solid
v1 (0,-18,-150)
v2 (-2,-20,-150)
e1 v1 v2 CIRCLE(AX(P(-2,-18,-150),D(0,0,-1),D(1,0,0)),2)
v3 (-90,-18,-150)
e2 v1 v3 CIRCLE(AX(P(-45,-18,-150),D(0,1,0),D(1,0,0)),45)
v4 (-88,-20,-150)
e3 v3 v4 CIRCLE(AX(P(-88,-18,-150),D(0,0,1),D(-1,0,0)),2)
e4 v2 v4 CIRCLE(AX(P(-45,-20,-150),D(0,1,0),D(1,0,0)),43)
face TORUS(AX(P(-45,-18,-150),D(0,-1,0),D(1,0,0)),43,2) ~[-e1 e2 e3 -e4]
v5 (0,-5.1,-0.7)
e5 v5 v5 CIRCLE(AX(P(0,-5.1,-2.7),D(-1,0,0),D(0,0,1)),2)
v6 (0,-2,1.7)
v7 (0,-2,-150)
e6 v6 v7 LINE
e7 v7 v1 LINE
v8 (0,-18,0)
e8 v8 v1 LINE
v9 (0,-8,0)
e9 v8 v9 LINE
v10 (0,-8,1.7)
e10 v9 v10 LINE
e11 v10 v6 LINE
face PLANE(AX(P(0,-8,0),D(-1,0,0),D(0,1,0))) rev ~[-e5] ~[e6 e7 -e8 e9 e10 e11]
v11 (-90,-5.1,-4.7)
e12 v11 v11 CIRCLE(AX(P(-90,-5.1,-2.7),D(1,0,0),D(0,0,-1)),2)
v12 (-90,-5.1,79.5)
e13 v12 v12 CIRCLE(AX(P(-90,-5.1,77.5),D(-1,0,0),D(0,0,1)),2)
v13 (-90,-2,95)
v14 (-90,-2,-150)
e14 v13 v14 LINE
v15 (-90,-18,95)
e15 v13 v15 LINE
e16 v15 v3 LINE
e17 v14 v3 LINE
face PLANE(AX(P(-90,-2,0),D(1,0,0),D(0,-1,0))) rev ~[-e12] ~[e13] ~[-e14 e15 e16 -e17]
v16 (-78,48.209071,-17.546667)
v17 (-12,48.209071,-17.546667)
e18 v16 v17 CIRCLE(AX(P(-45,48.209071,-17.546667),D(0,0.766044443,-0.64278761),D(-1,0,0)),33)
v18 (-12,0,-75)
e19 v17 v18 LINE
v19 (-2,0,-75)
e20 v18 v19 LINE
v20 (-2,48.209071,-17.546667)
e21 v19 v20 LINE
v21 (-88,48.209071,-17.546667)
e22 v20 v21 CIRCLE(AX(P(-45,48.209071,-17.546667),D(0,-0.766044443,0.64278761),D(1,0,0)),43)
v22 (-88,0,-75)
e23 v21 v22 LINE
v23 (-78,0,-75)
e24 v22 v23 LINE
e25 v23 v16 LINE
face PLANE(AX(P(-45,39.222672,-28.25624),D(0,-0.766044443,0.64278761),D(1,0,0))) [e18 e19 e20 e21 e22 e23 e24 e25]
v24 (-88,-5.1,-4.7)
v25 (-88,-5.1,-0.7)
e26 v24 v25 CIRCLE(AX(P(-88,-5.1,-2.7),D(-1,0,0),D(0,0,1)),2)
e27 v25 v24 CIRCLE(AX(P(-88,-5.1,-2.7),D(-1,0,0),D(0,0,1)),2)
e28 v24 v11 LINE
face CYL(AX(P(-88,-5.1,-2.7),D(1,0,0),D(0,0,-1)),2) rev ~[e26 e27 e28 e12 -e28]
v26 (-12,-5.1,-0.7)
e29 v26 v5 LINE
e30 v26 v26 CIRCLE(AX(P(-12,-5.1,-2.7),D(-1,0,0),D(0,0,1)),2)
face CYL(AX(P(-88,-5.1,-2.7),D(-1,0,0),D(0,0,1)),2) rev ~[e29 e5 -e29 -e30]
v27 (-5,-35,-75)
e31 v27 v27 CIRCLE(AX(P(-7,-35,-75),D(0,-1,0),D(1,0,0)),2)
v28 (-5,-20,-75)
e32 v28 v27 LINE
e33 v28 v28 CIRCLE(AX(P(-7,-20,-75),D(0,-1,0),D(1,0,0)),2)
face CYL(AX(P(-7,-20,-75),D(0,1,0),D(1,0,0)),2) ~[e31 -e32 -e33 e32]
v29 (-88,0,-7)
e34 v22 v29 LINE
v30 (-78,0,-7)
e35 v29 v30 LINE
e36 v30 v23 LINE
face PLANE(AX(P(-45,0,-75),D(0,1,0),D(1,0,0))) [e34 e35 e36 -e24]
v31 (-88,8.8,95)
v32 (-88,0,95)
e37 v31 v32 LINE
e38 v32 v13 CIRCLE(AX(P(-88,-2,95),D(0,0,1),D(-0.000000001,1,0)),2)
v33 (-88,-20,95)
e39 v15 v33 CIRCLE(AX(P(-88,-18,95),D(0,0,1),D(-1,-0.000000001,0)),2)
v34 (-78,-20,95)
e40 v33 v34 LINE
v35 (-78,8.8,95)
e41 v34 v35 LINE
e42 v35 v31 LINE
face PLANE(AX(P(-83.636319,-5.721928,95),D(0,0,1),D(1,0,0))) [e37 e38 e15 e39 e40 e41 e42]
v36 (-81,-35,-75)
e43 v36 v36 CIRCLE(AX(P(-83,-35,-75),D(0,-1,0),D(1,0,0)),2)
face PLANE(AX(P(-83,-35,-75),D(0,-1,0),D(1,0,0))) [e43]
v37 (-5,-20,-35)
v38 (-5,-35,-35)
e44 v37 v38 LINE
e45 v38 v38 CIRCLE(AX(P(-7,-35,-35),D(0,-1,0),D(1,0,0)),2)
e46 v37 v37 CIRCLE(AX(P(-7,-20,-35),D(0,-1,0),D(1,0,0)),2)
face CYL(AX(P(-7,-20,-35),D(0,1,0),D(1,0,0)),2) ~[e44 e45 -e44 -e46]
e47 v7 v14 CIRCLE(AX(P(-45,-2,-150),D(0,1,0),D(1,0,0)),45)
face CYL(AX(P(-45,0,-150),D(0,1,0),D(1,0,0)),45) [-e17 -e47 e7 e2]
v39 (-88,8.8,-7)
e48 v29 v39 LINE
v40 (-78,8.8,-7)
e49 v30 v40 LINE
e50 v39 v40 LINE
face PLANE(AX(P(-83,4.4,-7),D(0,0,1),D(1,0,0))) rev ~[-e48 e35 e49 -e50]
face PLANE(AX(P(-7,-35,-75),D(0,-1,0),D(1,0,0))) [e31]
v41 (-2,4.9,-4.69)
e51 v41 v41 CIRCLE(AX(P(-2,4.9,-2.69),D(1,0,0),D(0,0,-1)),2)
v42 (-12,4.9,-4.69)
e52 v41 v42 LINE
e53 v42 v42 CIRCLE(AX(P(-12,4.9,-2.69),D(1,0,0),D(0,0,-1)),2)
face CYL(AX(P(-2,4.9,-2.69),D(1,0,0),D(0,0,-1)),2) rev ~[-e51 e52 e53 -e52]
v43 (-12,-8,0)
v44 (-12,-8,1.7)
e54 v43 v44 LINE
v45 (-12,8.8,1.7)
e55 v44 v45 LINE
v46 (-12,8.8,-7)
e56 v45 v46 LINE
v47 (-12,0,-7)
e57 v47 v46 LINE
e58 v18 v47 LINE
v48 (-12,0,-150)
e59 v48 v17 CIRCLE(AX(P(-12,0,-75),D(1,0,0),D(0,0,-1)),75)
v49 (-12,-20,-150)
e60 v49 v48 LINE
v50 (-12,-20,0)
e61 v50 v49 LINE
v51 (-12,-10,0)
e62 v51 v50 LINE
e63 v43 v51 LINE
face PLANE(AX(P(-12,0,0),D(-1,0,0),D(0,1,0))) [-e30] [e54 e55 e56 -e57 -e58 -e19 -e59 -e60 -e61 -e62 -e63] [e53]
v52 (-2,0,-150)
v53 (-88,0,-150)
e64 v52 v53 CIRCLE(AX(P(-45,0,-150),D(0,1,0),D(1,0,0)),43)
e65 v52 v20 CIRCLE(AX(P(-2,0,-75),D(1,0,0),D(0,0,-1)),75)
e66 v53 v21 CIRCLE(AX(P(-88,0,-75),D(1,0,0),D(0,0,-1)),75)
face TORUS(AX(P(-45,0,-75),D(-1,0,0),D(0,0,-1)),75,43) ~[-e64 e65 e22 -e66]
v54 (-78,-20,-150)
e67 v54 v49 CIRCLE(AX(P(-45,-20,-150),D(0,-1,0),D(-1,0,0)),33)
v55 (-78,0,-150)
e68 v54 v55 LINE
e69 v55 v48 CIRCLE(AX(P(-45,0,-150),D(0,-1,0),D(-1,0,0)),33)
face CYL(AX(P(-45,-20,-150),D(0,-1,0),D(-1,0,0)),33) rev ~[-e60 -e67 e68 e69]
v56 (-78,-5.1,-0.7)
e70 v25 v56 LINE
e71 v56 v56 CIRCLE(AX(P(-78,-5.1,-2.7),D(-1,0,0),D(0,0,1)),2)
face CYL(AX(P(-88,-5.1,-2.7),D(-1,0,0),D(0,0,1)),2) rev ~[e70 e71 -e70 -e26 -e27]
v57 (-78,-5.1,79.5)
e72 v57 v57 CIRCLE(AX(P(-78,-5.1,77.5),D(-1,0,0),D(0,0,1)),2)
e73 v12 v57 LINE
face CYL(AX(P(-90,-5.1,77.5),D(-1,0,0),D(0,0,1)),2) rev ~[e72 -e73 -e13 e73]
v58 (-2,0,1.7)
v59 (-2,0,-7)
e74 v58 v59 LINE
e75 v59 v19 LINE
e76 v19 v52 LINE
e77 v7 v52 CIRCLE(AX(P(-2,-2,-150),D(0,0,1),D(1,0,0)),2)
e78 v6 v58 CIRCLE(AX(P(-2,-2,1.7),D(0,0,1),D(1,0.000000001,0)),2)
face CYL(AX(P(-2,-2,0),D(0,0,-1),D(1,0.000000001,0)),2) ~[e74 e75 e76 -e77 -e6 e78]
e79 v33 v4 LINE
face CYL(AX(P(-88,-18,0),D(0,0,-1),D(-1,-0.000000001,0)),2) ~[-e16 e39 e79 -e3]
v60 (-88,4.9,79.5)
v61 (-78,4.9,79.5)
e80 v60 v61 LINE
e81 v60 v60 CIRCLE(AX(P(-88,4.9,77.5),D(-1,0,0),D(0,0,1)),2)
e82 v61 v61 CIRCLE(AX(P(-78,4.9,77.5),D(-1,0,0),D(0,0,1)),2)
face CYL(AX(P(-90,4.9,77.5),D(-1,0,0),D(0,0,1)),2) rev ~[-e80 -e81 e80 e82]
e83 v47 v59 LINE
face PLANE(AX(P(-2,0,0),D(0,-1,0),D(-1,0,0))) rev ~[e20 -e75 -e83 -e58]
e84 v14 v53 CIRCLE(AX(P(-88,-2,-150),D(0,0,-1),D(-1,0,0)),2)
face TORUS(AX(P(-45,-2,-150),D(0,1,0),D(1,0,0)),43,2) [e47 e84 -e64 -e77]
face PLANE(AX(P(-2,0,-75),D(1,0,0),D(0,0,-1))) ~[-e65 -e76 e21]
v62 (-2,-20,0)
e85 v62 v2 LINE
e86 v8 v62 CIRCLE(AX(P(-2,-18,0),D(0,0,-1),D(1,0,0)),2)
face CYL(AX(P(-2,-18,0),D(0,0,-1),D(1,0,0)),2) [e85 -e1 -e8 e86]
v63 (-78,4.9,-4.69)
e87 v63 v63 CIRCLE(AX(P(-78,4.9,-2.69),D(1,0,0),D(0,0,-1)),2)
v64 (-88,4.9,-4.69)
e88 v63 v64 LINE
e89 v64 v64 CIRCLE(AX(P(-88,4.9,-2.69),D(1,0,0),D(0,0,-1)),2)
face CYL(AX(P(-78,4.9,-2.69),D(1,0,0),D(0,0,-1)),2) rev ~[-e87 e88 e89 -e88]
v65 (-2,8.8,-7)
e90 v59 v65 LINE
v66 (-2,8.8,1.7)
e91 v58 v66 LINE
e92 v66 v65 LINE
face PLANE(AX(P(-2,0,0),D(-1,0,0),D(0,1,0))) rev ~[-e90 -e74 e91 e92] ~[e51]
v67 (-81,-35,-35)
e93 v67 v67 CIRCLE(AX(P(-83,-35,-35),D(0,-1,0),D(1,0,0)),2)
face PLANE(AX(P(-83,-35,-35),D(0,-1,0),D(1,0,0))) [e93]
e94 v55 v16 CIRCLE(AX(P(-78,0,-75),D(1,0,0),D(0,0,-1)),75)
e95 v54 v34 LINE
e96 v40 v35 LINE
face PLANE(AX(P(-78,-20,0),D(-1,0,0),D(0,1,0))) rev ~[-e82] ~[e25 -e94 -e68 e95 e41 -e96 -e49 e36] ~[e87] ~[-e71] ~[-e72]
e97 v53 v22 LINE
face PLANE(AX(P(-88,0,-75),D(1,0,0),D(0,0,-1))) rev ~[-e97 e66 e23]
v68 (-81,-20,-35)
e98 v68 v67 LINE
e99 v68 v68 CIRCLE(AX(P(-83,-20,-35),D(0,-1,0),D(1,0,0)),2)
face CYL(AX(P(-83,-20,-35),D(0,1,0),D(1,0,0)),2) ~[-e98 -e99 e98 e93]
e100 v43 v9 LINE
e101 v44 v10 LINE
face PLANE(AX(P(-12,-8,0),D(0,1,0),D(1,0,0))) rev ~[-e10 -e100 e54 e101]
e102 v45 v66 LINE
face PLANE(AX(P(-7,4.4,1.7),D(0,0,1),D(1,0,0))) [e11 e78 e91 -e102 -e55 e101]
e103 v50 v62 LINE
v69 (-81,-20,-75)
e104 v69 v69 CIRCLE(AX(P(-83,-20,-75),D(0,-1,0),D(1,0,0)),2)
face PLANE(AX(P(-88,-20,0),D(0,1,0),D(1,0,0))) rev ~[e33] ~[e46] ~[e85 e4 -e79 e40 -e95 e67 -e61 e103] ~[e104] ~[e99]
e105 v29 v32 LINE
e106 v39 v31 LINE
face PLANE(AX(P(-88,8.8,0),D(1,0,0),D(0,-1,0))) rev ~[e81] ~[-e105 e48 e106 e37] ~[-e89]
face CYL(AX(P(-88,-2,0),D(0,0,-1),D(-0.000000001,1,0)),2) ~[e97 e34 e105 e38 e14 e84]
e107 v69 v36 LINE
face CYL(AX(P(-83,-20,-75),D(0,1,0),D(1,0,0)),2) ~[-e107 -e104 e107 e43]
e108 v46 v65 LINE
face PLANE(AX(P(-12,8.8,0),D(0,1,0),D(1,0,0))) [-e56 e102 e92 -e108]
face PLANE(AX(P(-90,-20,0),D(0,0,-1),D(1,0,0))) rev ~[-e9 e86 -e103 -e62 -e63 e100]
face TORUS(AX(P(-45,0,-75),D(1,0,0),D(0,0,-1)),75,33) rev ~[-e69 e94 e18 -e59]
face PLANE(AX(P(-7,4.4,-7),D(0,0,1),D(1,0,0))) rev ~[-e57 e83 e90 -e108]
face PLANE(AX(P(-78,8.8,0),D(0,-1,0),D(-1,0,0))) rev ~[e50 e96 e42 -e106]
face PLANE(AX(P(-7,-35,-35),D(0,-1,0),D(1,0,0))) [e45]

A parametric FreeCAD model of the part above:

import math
import FreeCAD as App
import Part
import Sketcher
Q = App.Units.Quantity


def edges_at(feature, points):
    """Names of the edges that pass closest to the given points."""
    edges = feature.Shape.Edges
    near = lambda p: min(range(len(edges)), key=lambda i: edges[i].distToShape(Part.Vertex(*p))[0])
    return sorted({f"Edge{near(p) + 1}" for p in points})

doc = App.newDocument("Part")
body = doc.addObject("PartDesign::Body", "Body")
body.AllowCompound = True

sketch1 = doc.addObject("Sketcher::SketchObject", "Sketch")
body.addObject(sketch1)
sketch1.AttachmentSupport = (doc.XZ_Plane, [""])
sketch1.MapMode = "FlatFace"
sketch1.addGeometry([
    Part.LineSegment(App.Vector(0, 0, 0), App.Vector(0, -150, 0)),
    Part.ArcOfCircle(Part.Circle(App.Vector(-45, -150, 0), App.Vector(0, 0, 1), 45), math.radians(180), math.radians(360)),
    Part.LineSegment(App.Vector(-90, -150, 0), App.Vector(-90, 0, 0)),
    Part.ArcOfCircle(Part.Circle(App.Vector(-45, 0, 0), App.Vector(0, 0, 1), 45), math.radians(0), math.radians(180)),
], False)
sketch1.addConstraint([
    Sketcher.Constraint("Tangent", 0, 2, 1, 2),
    Sketcher.Constraint("Tangent", 1, 1, 2, 1),
    Sketcher.Constraint("Tangent", 2, 2, 3, 2),
    Sketcher.Constraint("Tangent", 3, 1, 0, 1),
    Sketcher.Constraint("Vertical", 0),
    Sketcher.Constraint("Vertical", 2),
    Sketcher.Constraint("Coincident", 3, 1, -1, 1),
    Sketcher.Constraint("Radius", 1, Q("45 mm")),
    Sketcher.Constraint("DistanceY", 0, 2, 0, 1, Q("150 mm")),
])
pad1 = doc.addObject("PartDesign::Pad", "Pad")
body.addObject(pad1)
pad1.Profile = sketch1
pad1.Length = 20
doc.recompute()

fillet = doc.addObject("PartDesign::Fillet", "Fillet")
body.addObject(fillet)
fillet.Base = (pad1, edges_at(pad1, [
    (-45, -20, -195),
    (-90, -20, -75),
    (-45, -20, 45),
    (-90, 0, -75),
    (-45, 0, -195),
    (0, 0, -75),
    (-45, 0, 45),
    (0, -20, -75),
]))
fillet.Radius = 2

sketch2 = doc.addObject("Sketcher::SketchObject", "Sketch001")
body.addObject(sketch2)
sketch2.AttachmentSupport = (doc.XZ_Plane, [""])
sketch2.MapMode = "FlatFace"
sketch2.addGeometry([
    Part.LineSegment(App.Vector(-78, -150, 0), App.Vector(-78, 0, 0)),
    Part.ArcOfCircle(Part.Circle(App.Vector(-45, 0, 0), App.Vector(0, 0, 1), 33), math.radians(0), math.radians(180)),
    Part.LineSegment(App.Vector(-12, 0, 0), App.Vector(-12, -150, 0)),
    Part.ArcOfCircle(Part.Circle(App.Vector(-45, -150, 0), App.Vector(0, 0, 1), 33), math.radians(180), math.radians(360)),
], False)
sketch2.addConstraint([
    Sketcher.Constraint("Tangent", 0, 2, 1, 2),
    Sketcher.Constraint("Tangent", 1, 1, 2, 1),
    Sketcher.Constraint("Tangent", 2, 2, 3, 2),
    Sketcher.Constraint("Tangent", 3, 1, 0, 1),
    Sketcher.Constraint("Vertical", 0),
    Sketcher.Constraint("Vertical", 2),
    Sketcher.Constraint("PointOnObject", 1, 3, -1),
    Sketcher.Constraint("Radius", 1, Q("33 mm")),
    Sketcher.Constraint("DistanceY", 0, 1, 0, 2, Q("150 mm")),
    Sketcher.Constraint("DistanceX", 1, 3, -1, 1, Q("45 mm")),
])
pocket1 = doc.addObject("PartDesign::Pocket", "Pocket")
body.addObject(pocket1)
pocket1.Profile = sketch2
pocket1.Length = 15
pocket1.Reversed = True

sketch3 = doc.addObject("Sketcher::SketchObject", "Sketch002")
body.addObject(sketch3)
sketch3.AttachmentSupport = (doc.XZ_Plane, [""])
sketch3.MapMode = "FlatFace"
sketch3.addGeometry([
    Part.LineSegment(App.Vector(-2, -75, 0), App.Vector(-2, -150, 0)),
    Part.ArcOfCircle(Part.Circle(App.Vector(-45, -150, 0), App.Vector(0, 0, 1), 43), math.radians(180), math.radians(360)),
    Part.LineSegment(App.Vector(-88, -150, 0), App.Vector(-88, -75, 0)),
    Part.LineSegment(App.Vector(-88, -75, 0), App.Vector(-78, -75, 0)),
    Part.LineSegment(App.Vector(-78, -75, 0), App.Vector(-78, -150, 0)),
    Part.ArcOfCircle(Part.Circle(App.Vector(-45, -150, 0), App.Vector(0, 0, 1), 33), math.radians(180), math.radians(360)),
    Part.LineSegment(App.Vector(-12, -150, 0), App.Vector(-12, -75, 0)),
    Part.LineSegment(App.Vector(-12, -75, 0), App.Vector(-2, -75, 0)),
], False)
sketch3.addGeometry(Part.LineSegment(App.Vector(-88, -75, 0), App.Vector(-2, -75, 0)), True)
sketch3.addConstraint([
    Sketcher.Constraint("Tangent", 0, 2, 1, 2),
    Sketcher.Constraint("Tangent", 1, 1, 2, 1),
    Sketcher.Constraint("Coincident", 2, 2, 3, 1),
    Sketcher.Constraint("Coincident", 3, 2, 4, 1),
    Sketcher.Constraint("Tangent", 4, 2, 5, 1),
    Sketcher.Constraint("Tangent", 5, 2, 6, 1),
    Sketcher.Constraint("Coincident", 6, 2, 7, 1),
    Sketcher.Constraint("Coincident", 7, 2, 0, 1),
    Sketcher.Constraint("Vertical", 0),
    Sketcher.Constraint("Vertical", 2),
    Sketcher.Constraint("Horizontal", 3),
    Sketcher.Constraint("Vertical", 4),
    Sketcher.Constraint("Vertical", 6),
    Sketcher.Constraint("Horizontal", 7),
    Sketcher.Constraint("Horizontal", 8),
    Sketcher.Constraint("Coincident", 5, 3, 1, 3),
    Sketcher.Constraint("Coincident", 8, 1, 2, 2),
    Sketcher.Constraint("Coincident", 8, 2, 7, 2),
    Sketcher.Constraint("Radius", 1, Q("43 mm")),
    Sketcher.Constraint("Radius", 5, Q("33 mm")),
    Sketcher.Constraint("DistanceY", 0, 2, 0, 1, Q("75 mm")),
    Sketcher.Constraint("DistanceX", 1, 3, -1, 1, Q("45 mm")),
    Sketcher.Constraint("DistanceY", 1, 3, -1, 1, Q("150 mm")),
])
revolution = doc.addObject("PartDesign::Revolution", "Revolution")
body.addObject(revolution)
revolution.Profile = sketch3
revolution.ReferenceAxis = (sketch3, ["Axis0"])
revolution.Angle = 140

sketch4 = doc.addObject("Sketcher::SketchObject", "Sketch003")
body.addObject(sketch4)
sketch4.AttachmentSupport = (doc.XZ_Plane, [""])
sketch4.MapMode = "FlatFace"
sketch4.AttachmentOffset = App.Placement(App.Vector(0, 0, 20), App.Rotation())
sketch4.addGeometry([
    Part.LineSegment(App.Vector(-76, 0, 0), App.Vector(-76, -150, 0)),
    Part.ArcOfCircle(Part.Circle(App.Vector(-45, -150, 0), App.Vector(0, 0, 1), 31), math.radians(180), math.radians(360)),
    Part.LineSegment(App.Vector(-14, -150, 0), App.Vector(-14, 0, 0)),
    Part.ArcOfCircle(Part.Circle(App.Vector(-45, 0, 0), App.Vector(0, 0, 1), 31), math.radians(0), math.radians(180)),
], False)
sketch4.addConstraint([
    Sketcher.Constraint("Tangent", 0, 2, 1, 1),
    Sketcher.Constraint("Tangent", 1, 2, 2, 1),
    Sketcher.Constraint("Tangent", 2, 2, 3, 1),
    Sketcher.Constraint("Tangent", 3, 2, 0, 1),
    Sketcher.Constraint("Vertical", 0),
    Sketcher.Constraint("Vertical", 2),
    Sketcher.Constraint("PointOnObject", 3, 3, -1),
    Sketcher.Constraint("Radius", 1, Q("31 mm")),
    Sketcher.Constraint("DistanceY", 0, 2, 0, 1, Q("150 mm")),
    Sketcher.Constraint("DistanceX", 1, 3, -1, 1, Q("45 mm")),
])
pocket2 = doc.addObject("PartDesign::Pocket", "Pocket001")
body.addObject(pocket2)
pocket2.Profile = sketch4
pocket2.Length = 20

sketch5 = doc.addObject("Sketcher::SketchObject", "Sketch004")
body.addObject(sketch5)
sketch5.AttachmentSupport = (doc.XZ_Plane, [""])
sketch5.MapMode = "FlatFace"
sketch5.AttachmentOffset = App.Placement(App.Vector(0, 0, 20), App.Rotation())
sketch5.addGeometry([
    Part.Circle(App.Vector(-83, -75, 0), App.Vector(0, 0, 1), 2),
    Part.Circle(App.Vector(-83, -35, 0), App.Vector(0, 0, 1), 2),
    Part.Circle(App.Vector(-83, 5, 0), App.Vector(0, 0, 1), 2),
    Part.Circle(App.Vector(-7, 5, 0), App.Vector(0, 0, 1), 2),
    Part.Circle(App.Vector(-7, -35, 0), App.Vector(0, 0, 1), 2),
    Part.Circle(App.Vector(-7, -75, 0), App.Vector(0, 0, 1), 2),
], False)
sketch5.addConstraint([
    Sketcher.Constraint("Equal", 0, 1),
    Sketcher.Constraint("Equal", 1, 2),
    Sketcher.Constraint("Equal", 2, 3),
    Sketcher.Constraint("Equal", 3, 4),
    Sketcher.Constraint("Equal", 4, 5),
    Sketcher.Constraint("Horizontal", 2, 3, 3, 3),
    Sketcher.Constraint("Horizontal", 1, 3, 4, 3),
    Sketcher.Constraint("Horizontal", 0, 3, 5, 3),
    Sketcher.Constraint("Vertical", 0, 3, 1, 3),
    Sketcher.Constraint("Vertical", 1, 3, 2, 3),
    Sketcher.Constraint("Vertical", 3, 3, 4, 3),
    Sketcher.Constraint("Vertical", 4, 3, 5, 3),
    Sketcher.Constraint("Diameter", 0, Q("4 mm")),
    Sketcher.Constraint("DistanceX", 0, 3, -1, 1, Q("83 mm")),
    Sketcher.Constraint("DistanceY", 0, 3, -1, 1, Q("75 mm")),
    Sketcher.Constraint("DistanceY", 1, 3, -1, 1, Q("35 mm")),
    Sketcher.Constraint("DistanceY", -1, 1, 2, 3, Q("5 mm")),
    Sketcher.Constraint("DistanceX", 3, 3, -1, 1, Q("7 mm")),
])
pad2 = doc.addObject("PartDesign::Pad", "Pad001")
body.addObject(pad2)
pad2.Profile = sketch5
pad2.Length = 15

sketch6 = doc.addObject("Sketcher::SketchObject", "Sketch005")
body.addObject(sketch6)
sketch6.AttachmentSupport = (doc.XZ_Plane, [""])
sketch6.MapMode = "FlatFace"
sketch6.AttachmentOffset = App.Placement(App.Vector(0, 0, 20), App.Rotation())
sketch6.addGeometry([
    Part.LineSegment(App.Vector(-90, 51, 0), App.Vector(-90, 0, 0)),
    Part.LineSegment(App.Vector(-90, 0, 0), App.Vector(0, 0, 0)),
    Part.LineSegment(App.Vector(0, 0, 0), App.Vector(0, 51, 0)),
    Part.LineSegment(App.Vector(0, 51, 0), App.Vector(-90, 51, 0)),
], False)
sketch6.addConstraint([
    Sketcher.Constraint("Coincident", 0, 2, 1, 1),
    Sketcher.Constraint("Coincident", 1, 2, 2, 1),
    Sketcher.Constraint("Coincident", 2, 2, 3, 1),
    Sketcher.Constraint("Coincident", 3, 2, 0, 1),
    Sketcher.Constraint("Vertical", 0),
    Sketcher.Constraint("Horizontal", 1),
    Sketcher.Constraint("Vertical", 2),
    Sketcher.Constraint("Horizontal", 3),
    Sketcher.Constraint("Coincident", 1, 2, -1, 1),
    Sketcher.Constraint("DistanceX", 1, 1, 1, 2, Q("90 mm")),
    Sketcher.Constraint("DistanceY", 0, 2, 0, 1, Q("51.446943 mm")),
])
pocket3 = doc.addObject("PartDesign::Pocket", "Pocket002")
body.addObject(pocket3)
pocket3.Profile = sketch6
pocket3.Length = 10

sketch7 = doc.addObject("Sketcher::SketchObject", "Sketch006")
body.addObject(sketch7)
sketch7.AttachmentSupport = (doc.XZ_Plane, [""])
sketch7.MapMode = "FlatFace"
sketch7.AttachmentOffset = App.Placement(App.Vector(0, 0, 35), App.Rotation())
sketch7.addGeometry([
    Part.Circle(App.Vector(-7, 5, 0), App.Vector(0, 0, 1), 2),
    Part.Circle(App.Vector(-83, 5, 0), App.Vector(0, 0, 1), 2),
], False)
sketch7.addConstraint([
    Sketcher.Constraint("Equal", 0, 1),
    Sketcher.Constraint("Horizontal", 0, 3, 1, 3),
    Sketcher.Constraint("Diameter", 0, Q("4 mm")),
    Sketcher.Constraint("DistanceX", 0, 3, -1, 1, Q("7 mm")),
    Sketcher.Constraint("DistanceY", -1, 1, 0, 3, Q("5 mm")),
    Sketcher.Constraint("DistanceX", 1, 3, -1, 1, Q("83 mm")),
])
pad3 = doc.addObject("PartDesign::Pad", "Pad002")
body.addObject(pad3)
pad3.Profile = sketch7
pad3.Length = 25
pad3.Reversed = True

sketch8 = doc.addObject("Sketcher::SketchObject", "Sketch007")
body.addObject(sketch8)
sketch8.AttachmentSupport = (doc.XY_Plane, [""])
sketch8.MapMode = "FlatFace"
sketch8.addGeometry([
    Part.LineSegment(App.Vector(-14, -15, 0), App.Vector(-14, -20, 0)),
    Part.LineSegment(App.Vector(-14, -20, 0), App.Vector(-12, -20, 0)),
    Part.LineSegment(App.Vector(-12, -20, 0), App.Vector(-12, -15, 0)),
    Part.LineSegment(App.Vector(-12, -15, 0), App.Vector(-14, -15, 0)),
    Part.LineSegment(App.Vector(-78, -15, 0), App.Vector(-78, -20, 0)),
    Part.LineSegment(App.Vector(-78, -20, 0), App.Vector(-76, -20, 0)),
    Part.LineSegment(App.Vector(-76, -20, 0), App.Vector(-76, -15, 0)),
    Part.LineSegment(App.Vector(-76, -15, 0), App.Vector(-78, -15, 0)),
], False)
sketch8.addConstraint([
    Sketcher.Constraint("Coincident", 0, 2, 1, 1),
    Sketcher.Constraint("Coincident", 1, 2, 2, 1),
    Sketcher.Constraint("Coincident", 2, 2, 3, 1),
    Sketcher.Constraint("Coincident", 3, 2, 0, 1),
    Sketcher.Constraint("Coincident", 4, 2, 5, 1),
    Sketcher.Constraint("Coincident", 5, 2, 6, 1),
    Sketcher.Constraint("Coincident", 6, 2, 7, 1),
    Sketcher.Constraint("Coincident", 7, 2, 4, 1),
    Sketcher.Constraint("Vertical", 0),
    Sketcher.Constraint("Horizontal", 1),
    Sketcher.Constraint("Vertical", 2),
    Sketcher.Constraint("Horizontal", 3),
    Sketcher.Constraint("Vertical", 4),
    Sketcher.Constraint("Horizontal", 5),
    Sketcher.Constraint("Vertical", 6),
    Sketcher.Constraint("Horizontal", 7),
    Sketcher.Constraint("Horizontal", 1, 2, 4, 2),
    Sketcher.Constraint("Horizontal", 3, 2, 6, 2),
    Sketcher.Constraint("Equal", 3, 5),
    Sketcher.Constraint("DistanceX", 1, 1, 1, 2, Q("2 mm")),
    Sketcher.Constraint("DistanceY", 0, 2, 0, 1, Q("5 mm")),
    Sketcher.Constraint("DistanceX", 0, 2, -1, 1, Q("14 mm")),
    Sketcher.Constraint("DistanceY", 0, 2, -1, 1, Q("20 mm")),
    Sketcher.Constraint("DistanceX", 4, 2, -1, 1, Q("78 mm")),
])
pocket4 = doc.addObject("PartDesign::Pocket", "Pocket003")
body.addObject(pocket4)
pocket4.Profile = sketch8
pocket4.Length = 150

sketch9 = doc.addObject("Sketcher::SketchObject", "Sketch008")
body.addObject(sketch9)
sketch9.AttachmentSupport = (doc.XZ_Plane, [""])
sketch9.MapMode = "FlatFace"
sketch9.AttachmentOffset = App.Placement(App.Vector(0, 0, 35), App.Rotation())
sketch9.addGeometry([
    Part.LineSegment(App.Vector(0, 0, 0), App.Vector(0, 51, 0)),
    Part.LineSegment(App.Vector(0, 51, 0), App.Vector(-90, 51, 0)),
    Part.LineSegment(App.Vector(-90, 51, 0), App.Vector(-90, 0, 0)),
    Part.LineSegment(App.Vector(-90, 0, 0), App.Vector(0, 0, 0)),
], False)
sketch9.addConstraint([
    Sketcher.Constraint("Coincident", 0, 2, 1, 1),
    Sketcher.Constraint("Coincident", 1, 2, 2, 1),
    Sketcher.Constraint("Coincident", 2, 2, 3, 1),
    Sketcher.Constraint("Coincident", 3, 2, 0, 1),
    Sketcher.Constraint("Vertical", 0),
    Sketcher.Constraint("Horizontal", 1),
    Sketcher.Constraint("Vertical", 2),
    Sketcher.Constraint("Horizontal", 3),
    Sketcher.Constraint("Coincident", 3, 2, -1, 1),
    Sketcher.Constraint("DistanceX", 1, 2, 1, 1, Q("90 mm")),
    Sketcher.Constraint("DistanceY", 0, 1, 0, 2, Q("51.37467 mm")),
])
pocket5 = doc.addObject("PartDesign::Pocket", "Pocket004")
body.addObject(pocket5)
pocket5.Profile = sketch9
pocket5.Length = 40

sketch10 = doc.addObject("Sketcher::SketchObject", "Sketch009")
body.addObject(sketch10)
sketch10.AttachmentSupport = (doc.XZ_Plane, [""])
sketch10.MapMode = "FlatFace"
sketch10.AttachmentOffset = App.Placement(App.Vector(0, 0, 20), App.Rotation())
sketch10.addGeometry([
    Part.LineSegment(App.Vector(-12, -150, 0), App.Vector(-14, -150, 0)),
    Part.ArcOfCircle(Part.Circle(App.Vector(-45, -150, 0), App.Vector(0, 0, 1), 31), math.radians(180), math.radians(360)),
    Part.LineSegment(App.Vector(-76, -150, 0), App.Vector(-78, -150, 0)),
    Part.ArcOfCircle(Part.Circle(App.Vector(-45, -150, 0), App.Vector(0, 0, 1), 33), math.radians(180), math.radians(360)),
], False)
sketch10.addConstraint([
    Sketcher.Constraint("Coincident", 0, 2, 1, 2),
    Sketcher.Constraint("Coincident", 1, 1, 2, 1),
    Sketcher.Constraint("Coincident", 2, 2, 3, 1),
    Sketcher.Constraint("Coincident", 3, 2, 0, 1),
    Sketcher.Constraint("Horizontal", 0),
    Sketcher.Constraint("Horizontal", 2),
    Sketcher.Constraint("Coincident", 3, 3, 1, 3),
    Sketcher.Constraint("Horizontal", 3, 3, 0, 2),
    Sketcher.Constraint("Horizontal", 0, 2, 1, 1),
    Sketcher.Constraint("Radius", 1, Q("31 mm")),
    Sketcher.Constraint("Radius", 3, Q("33 mm")),
    Sketcher.Constraint("DistanceX", 1, 3, -1, 1, Q("45 mm")),
    Sketcher.Constraint("DistanceY", 1, 3, -1, 1, Q("150 mm")),
])
pocket6 = doc.addObject("PartDesign::Pocket", "Pocket005")
body.addObject(pocket6)
pocket6.Profile = sketch10
pocket6.Length = 20

sketch11 = doc.addObject("Sketcher::SketchObject", "Sketch010")
body.addObject(sketch11)
sketch11.AttachmentSupport = (doc.XY_Plane, [""])
sketch11.MapMode = "FlatFace"
sketch11.addGeometry([
    Part.LineSegment(App.Vector(-2, 0, 0), App.Vector(-12, 0, 0)),
    Part.LineSegment(App.Vector(-12, 0, 0), App.Vector(-12, -8, 0)),
    Part.LineSegment(App.Vector(-12, -8, 0), App.Vector(0, -8, 0)),
    Part.LineSegment(App.Vector(0, -8, 0), App.Vector(0, -2, 0)),
    Part.ArcOfCircle(Part.Circle(App.Vector(-2, -2, 0), App.Vector(0, 0, 1), 2), math.radians(0), math.radians(90)),
], False)
sketch11.addConstraint([
    Sketcher.Constraint("Coincident", 0, 2, 1, 1),
    Sketcher.Constraint("Coincident", 1, 2, 2, 1),
    Sketcher.Constraint("Coincident", 2, 2, 3, 1),
    Sketcher.Constraint("Tangent", 3, 2, 4, 1),
    Sketcher.Constraint("Tangent", 4, 2, 0, 1),
    Sketcher.Constraint("Horizontal", 0),
    Sketcher.Constraint("Vertical", 1),
    Sketcher.Constraint("Horizontal", 2),
    Sketcher.Constraint("Vertical", 3),
    Sketcher.Constraint("PointOnObject", 0, 2, -1),
    Sketcher.Constraint("PointOnObject", 2, 2, -2),
    Sketcher.Constraint("Radius", 4, Q("2 mm")),
    Sketcher.Constraint("DistanceX", 0, 2, 0, 1, Q("10 mm")),
    Sketcher.Constraint("DistanceY", 1, 2, 1, 1, Q("8 mm")),
])
pad4 = doc.addObject("PartDesign::Pad", "Pad003")
body.addObject(pad4)
pad4.Profile = sketch11
pad4.Length = 1.7

sketch12 = doc.addObject("Sketcher::SketchObject", "Sketch011")
body.addObject(sketch12)
sketch12.AttachmentSupport = (doc.XY_Plane, [""])
sketch12.MapMode = "FlatFace"
sketch12.addGeometry([
    Part.LineSegment(App.Vector(-12, 9, 0), App.Vector(-12, 0, 0)),
    Part.LineSegment(App.Vector(-12, 0, 0), App.Vector(-2, 0, 0)),
    Part.LineSegment(App.Vector(-2, 0, 0), App.Vector(-2, 9, 0)),
    Part.LineSegment(App.Vector(-2, 9, 0), App.Vector(-12, 9, 0)),
], False)
sketch12.addConstraint([
    Sketcher.Constraint("Coincident", 0, 2, 1, 1),
    Sketcher.Constraint("Coincident", 1, 2, 2, 1),
    Sketcher.Constraint("Coincident", 2, 2, 3, 1),
    Sketcher.Constraint("Coincident", 3, 2, 0, 1),
    Sketcher.Constraint("Vertical", 0),
    Sketcher.Constraint("Horizontal", 1),
    Sketcher.Constraint("Vertical", 2),
    Sketcher.Constraint("Horizontal", 3),
    Sketcher.Constraint("PointOnObject", 0, 2, -1),
    Sketcher.Constraint("DistanceX", 1, 1, 1, 2, Q("10 mm")),
    Sketcher.Constraint("DistanceY", 0, 2, 0, 1, Q("8.8 mm")),
    Sketcher.Constraint("DistanceX", 0, 2, -1, 1, Q("12 mm")),
])
pad5 = doc.addObject("PartDesign::Pad", "Pad004")
body.addObject(pad5)
pad5.Profile = sketch12
pad5.Length = 7
pad5.Reversed = True

sketch13 = doc.addObject("Sketcher::SketchObject", "Sketch012")
body.addObject(sketch13)
sketch13.AttachmentSupport = (doc.XY_Plane, [""])
sketch13.MapMode = "FlatFace"
sketch13.addGeometry([
    Part.LineSegment(App.Vector(-12, 9, 0), App.Vector(-12, 0, 0)),
    Part.LineSegment(App.Vector(-12, 0, 0), App.Vector(-2, 0, 0)),
    Part.LineSegment(App.Vector(-2, 0, 0), App.Vector(-2, 9, 0)),
    Part.LineSegment(App.Vector(-2, 9, 0), App.Vector(-12, 9, 0)),
], False)
sketch13.addConstraint([
    Sketcher.Constraint("Coincident", 0, 2, 1, 1),
    Sketcher.Constraint("Coincident", 1, 2, 2, 1),
    Sketcher.Constraint("Coincident", 2, 2, 3, 1),
    Sketcher.Constraint("Coincident", 3, 2, 0, 1),
    Sketcher.Constraint("Vertical", 0),
    Sketcher.Constraint("Horizontal", 1),
    Sketcher.Constraint("Vertical", 2),
    Sketcher.Constraint("Horizontal", 3),
    Sketcher.Constraint("PointOnObject", 0, 2, -1),
    Sketcher.Constraint("DistanceX", 1, 1, 1, 2, Q("10 mm")),
    Sketcher.Constraint("DistanceY", 0, 2, 0, 1, Q("8.8 mm")),
    Sketcher.Constraint("DistanceX", 0, 2, -1, 1, Q("12 mm")),
])
pad6 = doc.addObject("PartDesign::Pad", "Pad005")
body.addObject(pad6)
pad6.Profile = sketch13
pad6.Length = 1.7

sketch14 = doc.addObject("Sketcher::SketchObject", "Sketch013")
body.addObject(sketch14)
sketch14.AttachmentSupport = (doc.YZ_Plane, [""])
sketch14.MapMode = "FlatFace"
sketch14.AttachmentOffset = App.Placement(App.Vector(0, 0, -2), App.Rotation())
sketch14.addGeometry(Part.Circle(App.Vector(4.9, -2.7, 0), App.Vector(0, 0, 1), 2), False)
sketch14.addConstraint([
    Sketcher.Constraint("Diameter", 0, Q("4 mm")),
    Sketcher.Constraint("DistanceX", -1, 1, 0, 3, Q("4.9 mm")),
    Sketcher.Constraint("DistanceY", 0, 3, -1, 1, Q("2.69 mm")),
])
pocket7 = doc.addObject("PartDesign::Pocket", "Pocket006")
body.addObject(pocket7)
pocket7.Profile = sketch14
pocket7.Type = "ThroughAll"

sketch15 = doc.addObject("Sketcher::SketchObject", "Sketch014")
body.addObject(sketch15)
sketch15.AttachmentSupport = (doc.XY_Plane, [""])
sketch15.MapMode = "FlatFace"
sketch15.addGeometry([
    Part.LineSegment(App.Vector(-88, 9, 0), App.Vector(-88, 0, 0)),
    Part.LineSegment(App.Vector(-88, 0, 0), App.Vector(-78, 0, 0)),
    Part.LineSegment(App.Vector(-78, 0, 0), App.Vector(-78, 9, 0)),
    Part.LineSegment(App.Vector(-78, 9, 0), App.Vector(-88, 9, 0)),
], False)
sketch15.addConstraint([
    Sketcher.Constraint("Coincident", 0, 2, 1, 1),
    Sketcher.Constraint("Coincident", 1, 2, 2, 1),
    Sketcher.Constraint("Coincident", 2, 2, 3, 1),
    Sketcher.Constraint("Coincident", 3, 2, 0, 1),
    Sketcher.Constraint("Vertical", 0),
    Sketcher.Constraint("Horizontal", 1),
    Sketcher.Constraint("Vertical", 2),
    Sketcher.Constraint("Horizontal", 3),
    Sketcher.Constraint("PointOnObject", 0, 2, -1),
    Sketcher.Constraint("DistanceX", 1, 1, 1, 2, Q("10 mm")),
    Sketcher.Constraint("DistanceY", 0, 2, 0, 1, Q("8.8 mm")),
    Sketcher.Constraint("DistanceX", 0, 2, -1, 1, Q("88 mm")),
])
pad7 = doc.addObject("PartDesign::Pad", "Pad006")
body.addObject(pad7)
pad7.Profile = sketch15
pad7.Length = 7
pad7.Reversed = True

sketch16 = doc.addObject("Sketcher::SketchObject", "Sketch015")
body.addObject(sketch16)
sketch16.AttachmentSupport = (doc.YZ_Plane, [""])
sketch16.MapMode = "FlatFace"
sketch16.AttachmentOffset = App.Placement(App.Vector(0, 0, -78), App.Rotation())
sketch16.addGeometry(Part.Circle(App.Vector(4.9, -2.7, 0), App.Vector(0, 0, 1), 2), False)
sketch16.addConstraint([
    Sketcher.Constraint("Diameter", 0, Q("4 mm")),
    Sketcher.Constraint("DistanceX", -1, 1, 0, 3, Q("4.9 mm")),
    Sketcher.Constraint("DistanceY", 0, 3, -1, 1, Q("2.69 mm")),
])
pocket8 = doc.addObject("PartDesign::Pocket", "Pocket007")
body.addObject(pocket8)
pocket8.Profile = sketch16
pocket8.Length = 20

sketch17 = doc.addObject("Sketcher::SketchObject", "Sketch016")
body.addObject(sketch17)
sketch17.AttachmentSupport = (doc.YZ_Plane, [""])
sketch17.MapMode = "FlatFace"
sketch17.AttachmentOffset = App.Placement(App.Vector(0, 0, -88), App.Rotation())
sketch17.addGeometry(Part.Circle(App.Vector(-5.1, -2.7, 0), App.Vector(0, 0, 1), 2), False)
sketch17.addConstraint([
    Sketcher.Constraint("Diameter", 0, Q("4 mm")),
    Sketcher.Constraint("DistanceX", 0, 3, -1, 1, Q("5.1 mm")),
    Sketcher.Constraint("DistanceY", 0, 3, -1, 1, Q("2.7 mm")),
])
pocket9 = doc.addObject("PartDesign::Pocket", "Pocket008")
body.addObject(pocket9)
pocket9.Profile = sketch17
pocket9.Type = "ThroughAll"
pocket9.Reversed = True

sketch18 = doc.addObject("Sketcher::SketchObject", "Sketch017")
body.addObject(sketch18)
sketch18.AttachmentSupport = (doc.YZ_Plane, [""])
sketch18.MapMode = "FlatFace"
sketch18.AttachmentOffset = App.Placement(App.Vector(0, 0, -88), App.Rotation())
sketch18.addGeometry(Part.Circle(App.Vector(-5.1, -2.7, 0), App.Vector(0, 0, 1), 2), False)
sketch18.addConstraint([
    Sketcher.Constraint("Diameter", 0, Q("4 mm")),
    Sketcher.Constraint("DistanceX", 0, 3, -1, 1, Q("5.1 mm")),
    Sketcher.Constraint("DistanceY", 0, 3, -1, 1, Q("2.7 mm")),
])
pocket10 = doc.addObject("PartDesign::Pocket", "Pocket009")
body.addObject(pocket10)
pocket10.Profile = sketch18
pocket10.Length = 20

sketch19 = doc.addObject("Sketcher::SketchObject", "Sketch018")
body.addObject(sketch19)
sketch19.AttachmentSupport = (doc.XY_Plane, [""])
sketch19.MapMode = "FlatFace"
sketch19.addGeometry([
    Part.LineSegment(App.Vector(-88, -20, 0), App.Vector(-78, -20, 0)),
    Part.LineSegment(App.Vector(-78, -20, 0), App.Vector(-78, 8.8, 0)),
    Part.LineSegment(App.Vector(-78, 8.8, 0), App.Vector(-88, 8.8, 0)),
    Part.LineSegment(App.Vector(-88, 8.8, 0), App.Vector(-88, 0, 0)),
    Part.ArcOfCircle(Part.Circle(App.Vector(-88, -2, 0), App.Vector(0, 0, 1), 2), math.radians(90), math.radians(180)),
    Part.LineSegment(App.Vector(-90, -2, 0), App.Vector(-90, -18, 0)),
    Part.ArcOfCircle(Part.Circle(App.Vector(-88, -18, 0), App.Vector(0, 0, 1), 2), math.radians(-180), math.radians(-90)),
], False)
sketch19.addConstraint([
    Sketcher.Constraint("Coincident", 0, 2, 1, 1),
    Sketcher.Constraint("Coincident", 1, 2, 2, 1),
    Sketcher.Constraint("Coincident", 2, 2, 3, 1),
    Sketcher.Constraint("Coincident", 3, 2, 4, 1),
    Sketcher.Constraint("Tangent", 4, 2, 5, 1),
    Sketcher.Constraint("Tangent", 5, 2, 6, 1),
    Sketcher.Constraint("Tangent", 6, 2, 0, 1),
    Sketcher.Constraint("Horizontal", 0),
    Sketcher.Constraint("Vertical", 1),
    Sketcher.Constraint("Horizontal", 2),
    Sketcher.Constraint("Vertical", 3),
    Sketcher.Constraint("Vertical", 5),
    Sketcher.Constraint("Equal", 4, 6),
    Sketcher.Constraint("PointOnObject", 3, 2, -1),
    Sketcher.Constraint("Vertical", 6, 3, 2, 2),
    Sketcher.Constraint("Radius", 4, Q("2 mm")),
    Sketcher.Constraint("DistanceX", 0, 1, 0, 2, Q("10 mm")),
    Sketcher.Constraint("DistanceY", 5, 2, 5, 1, Q("16 mm")),
    Sketcher.Constraint("DistanceY", 1, 1, 1, 2, Q("28.8 mm")),
    Sketcher.Constraint("DistanceX", 4, 3, -1, 1, Q("88 mm")),
])
pad8 = doc.addObject("PartDesign::Pad", "Pad007")
body.addObject(pad8)
pad8.Profile = sketch19
pad8.Length = 95

sketch20 = doc.addObject("Sketcher::SketchObject", "Sketch019")
body.addObject(sketch20)
sketch20.AttachmentSupport = (doc.YZ_Plane, [""])
sketch20.MapMode = "FlatFace"
sketch20.AttachmentOffset = App.Placement(App.Vector(0, 0, -90), App.Rotation())
sketch20.addGeometry([
    Part.Circle(App.Vector(-5.1, 77.5, 0), App.Vector(0, 0, 1), 2),
    Part.Circle(App.Vector(4.9, 77.5, 0), App.Vector(0, 0, 1), 2),
], False)
sketch20.addConstraint([
    Sketcher.Constraint("Equal", 0, 1),
    Sketcher.Constraint("Horizontal", 0, 3, 1, 3),
    Sketcher.Constraint("Diameter", 0, Q("4 mm")),
    Sketcher.Constraint("DistanceX", 0, 3, 1, 3, Q("10 mm")),
    Sketcher.Constraint("DistanceX", 0, 3, -1, 1, Q("5.1 mm")),
    Sketcher.Constraint("DistanceY", -1, 1, 0, 3, Q("77.5 mm")),
])
pocket11 = doc.addObject("PartDesign::Pocket", "Pocket010")
body.addObject(pocket11)
pocket11.Profile = sketch20
pocket11.Length = 80
pocket11.Reversed = True

doc.recompute()
